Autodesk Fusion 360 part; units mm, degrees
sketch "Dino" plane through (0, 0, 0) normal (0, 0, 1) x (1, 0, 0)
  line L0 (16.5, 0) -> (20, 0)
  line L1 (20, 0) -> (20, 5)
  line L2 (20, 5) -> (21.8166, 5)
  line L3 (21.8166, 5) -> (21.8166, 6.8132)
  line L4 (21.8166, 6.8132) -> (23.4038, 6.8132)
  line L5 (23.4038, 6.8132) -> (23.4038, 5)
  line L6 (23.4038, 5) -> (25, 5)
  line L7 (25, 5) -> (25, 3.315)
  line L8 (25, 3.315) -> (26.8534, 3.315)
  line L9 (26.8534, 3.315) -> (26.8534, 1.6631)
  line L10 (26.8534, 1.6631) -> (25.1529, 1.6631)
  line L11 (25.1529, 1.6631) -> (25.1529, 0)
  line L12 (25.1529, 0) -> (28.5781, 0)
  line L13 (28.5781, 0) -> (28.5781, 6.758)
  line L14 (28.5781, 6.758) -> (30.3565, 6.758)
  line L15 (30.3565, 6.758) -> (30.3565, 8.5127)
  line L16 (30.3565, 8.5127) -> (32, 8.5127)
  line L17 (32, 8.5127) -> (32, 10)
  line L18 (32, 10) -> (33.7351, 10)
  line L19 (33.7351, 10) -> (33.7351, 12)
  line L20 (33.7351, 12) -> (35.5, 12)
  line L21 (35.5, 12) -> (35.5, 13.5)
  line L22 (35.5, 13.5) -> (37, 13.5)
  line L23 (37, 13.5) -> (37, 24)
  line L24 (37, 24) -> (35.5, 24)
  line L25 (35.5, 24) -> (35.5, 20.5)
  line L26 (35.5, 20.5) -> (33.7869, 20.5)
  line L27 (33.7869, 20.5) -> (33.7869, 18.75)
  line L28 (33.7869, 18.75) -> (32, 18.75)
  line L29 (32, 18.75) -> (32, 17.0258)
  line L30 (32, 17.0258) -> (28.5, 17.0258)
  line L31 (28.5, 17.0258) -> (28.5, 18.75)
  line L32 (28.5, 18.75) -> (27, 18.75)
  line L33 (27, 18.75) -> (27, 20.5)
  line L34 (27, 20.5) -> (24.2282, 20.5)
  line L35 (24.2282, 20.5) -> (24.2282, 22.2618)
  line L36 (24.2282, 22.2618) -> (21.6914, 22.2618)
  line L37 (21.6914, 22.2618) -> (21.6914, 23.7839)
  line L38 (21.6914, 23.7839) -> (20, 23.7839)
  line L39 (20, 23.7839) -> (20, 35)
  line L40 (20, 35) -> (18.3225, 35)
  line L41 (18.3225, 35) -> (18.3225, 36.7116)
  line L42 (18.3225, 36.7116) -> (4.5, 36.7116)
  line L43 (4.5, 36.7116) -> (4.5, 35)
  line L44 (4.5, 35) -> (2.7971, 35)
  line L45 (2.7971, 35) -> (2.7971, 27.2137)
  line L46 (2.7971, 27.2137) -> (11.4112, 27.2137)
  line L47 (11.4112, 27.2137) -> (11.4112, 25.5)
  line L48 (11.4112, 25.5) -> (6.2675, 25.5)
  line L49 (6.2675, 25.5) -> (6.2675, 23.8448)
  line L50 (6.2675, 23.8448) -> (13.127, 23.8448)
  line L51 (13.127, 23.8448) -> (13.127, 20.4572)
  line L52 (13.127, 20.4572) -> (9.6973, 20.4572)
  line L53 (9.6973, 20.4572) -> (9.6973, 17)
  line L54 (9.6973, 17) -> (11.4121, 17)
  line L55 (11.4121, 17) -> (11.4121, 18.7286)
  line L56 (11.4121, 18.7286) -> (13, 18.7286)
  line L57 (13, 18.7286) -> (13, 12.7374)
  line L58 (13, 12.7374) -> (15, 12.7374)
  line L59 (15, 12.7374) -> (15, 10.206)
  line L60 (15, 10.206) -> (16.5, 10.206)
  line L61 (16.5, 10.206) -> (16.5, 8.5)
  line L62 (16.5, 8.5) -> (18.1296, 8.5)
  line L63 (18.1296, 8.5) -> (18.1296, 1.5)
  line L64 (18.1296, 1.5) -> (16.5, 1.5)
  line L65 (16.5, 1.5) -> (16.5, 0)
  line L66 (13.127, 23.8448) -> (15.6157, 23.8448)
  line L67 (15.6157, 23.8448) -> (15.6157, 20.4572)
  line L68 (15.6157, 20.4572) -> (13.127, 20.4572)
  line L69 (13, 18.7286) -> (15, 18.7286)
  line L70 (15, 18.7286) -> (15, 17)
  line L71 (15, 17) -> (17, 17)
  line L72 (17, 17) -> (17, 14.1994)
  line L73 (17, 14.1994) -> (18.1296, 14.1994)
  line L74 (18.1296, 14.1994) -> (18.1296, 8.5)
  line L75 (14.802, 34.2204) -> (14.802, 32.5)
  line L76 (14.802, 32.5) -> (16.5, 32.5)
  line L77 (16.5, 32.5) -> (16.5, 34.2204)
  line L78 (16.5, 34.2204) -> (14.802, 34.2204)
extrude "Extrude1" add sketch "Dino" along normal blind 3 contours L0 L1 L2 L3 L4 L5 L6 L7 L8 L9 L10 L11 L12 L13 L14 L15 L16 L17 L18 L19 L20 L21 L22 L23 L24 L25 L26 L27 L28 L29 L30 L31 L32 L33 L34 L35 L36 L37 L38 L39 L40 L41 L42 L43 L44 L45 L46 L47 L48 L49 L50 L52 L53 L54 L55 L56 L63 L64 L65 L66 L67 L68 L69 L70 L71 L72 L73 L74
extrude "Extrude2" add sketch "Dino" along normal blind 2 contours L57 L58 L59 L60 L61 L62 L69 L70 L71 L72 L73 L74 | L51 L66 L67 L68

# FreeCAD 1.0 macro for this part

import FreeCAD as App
import Part
import Sketcher
from FreeCAD import Vector
Q = App.Units.Quantity


def add_polygon(sketch, points):
    """Adds a closed chain of lines whose ends are joined by coincident constraints."""
    first, n = sketch.GeometryCount, len(points)
    for a, b in zip(points, points[1:] + points[:1]):
        sketch.addGeometry(Part.LineSegment(App.Vector(*a, 0), App.Vector(*b, 0)), False)
    for i in range(n):
        sketch.addConstraint(Sketcher.Constraint("Coincident", first + i, 2, first + (i + 1) % n, 1))

doc = App.newDocument("Part")
body = doc.addObject("PartDesign::Body", "Body")

# Sketch on XY plane
sketch1 = doc.addObject("Sketcher::SketchObject", "Sketch")
body.addObject(sketch1)
sketch1.AttachmentSupport = (doc.XY_Plane, [""])
sketch1.MapMode = "FlatFace"
add_polygon(sketch1, [(16.5, 1.5), (16.5, 0), (20, 0), (20, 5), (21.8166, 5), (21.8166, 6.8132), (23.4038, 6.8132), (23.4038, 5), (25, 5), (25, 3.315), (26.8534, 3.315), (26.8534, 1.6631), (25.1529, 1.6631), (25.1529, 0), (28.5781, 0), (28.5781, 6.758), (30.3565, 6.758), (30.3565, 8.5127), (32, 8.5127), (32, 10), (33.7351, 10), (33.7351, 12), (35.5, 12), (35.5, 13.5), (37, 13.5), (37, 24), (35.5, 24), (35.5, 20.5), (33.7869, 20.5), (33.7869, 18.75), (32, 18.75), (32, 17.0258), (28.5, 17.0258), (28.5, 18.75), (27, 18.75), (27, 20.5), (24.2282, 20.5), (24.2282, 22.2618), (21.6914, 22.2618), (21.6914, 23.7839), (20, 23.7839), (20, 35), (18.3225, 35), (18.3225, 36.7116), (4.5, 36.7116), (4.5, 35), (2.7971, 35), (2.7971, 27.2137), (11.4112, 27.2137), (11.4112, 25.5), (6.2675, 25.5), (6.2675, 23.8448), (15.6157, 23.8448), (15.6157, 20.4572), (9.6973, 20.4572), (9.6973, 17), (11.4121, 17), (11.4121, 18.7286), (15, 18.7286), (15, 17), (17, 17), (17, 14.1994), (18.1296, 14.1994), (18.1296, 1.5)])  # lines 0-63
add_polygon(sketch1, [(14.802, 32.5), (14.802, 34.2204), (16.5, 34.2204), (16.5, 32.5)])  # lines 64-67
sketch1.addConstraint([
    Sketcher.Constraint("Vertical", 0),
    Sketcher.Constraint("Horizontal", 1),
    Sketcher.Constraint("Vertical", 2),
    Sketcher.Constraint("Horizontal", 3),
    Sketcher.Constraint("Vertical", 4),
    Sketcher.Constraint("Horizontal", 5),
    Sketcher.Constraint("Vertical", 6),
    Sketcher.Constraint("Horizontal", 7),
    Sketcher.Constraint("Vertical", 8),
    Sketcher.Constraint("Horizontal", 9),
    Sketcher.Constraint("Vertical", 10),
    Sketcher.Constraint("Horizontal", 11),
    Sketcher.Constraint("Vertical", 12),
    Sketcher.Constraint("Horizontal", 13),
    Sketcher.Constraint("Vertical", 14),
    Sketcher.Constraint("Horizontal", 15),
    Sketcher.Constraint("Vertical", 16),
    Sketcher.Constraint("Horizontal", 17),
    Sketcher.Constraint("Vertical", 18),
    Sketcher.Constraint("Horizontal", 19),
    Sketcher.Constraint("Vertical", 20),
    Sketcher.Constraint("Horizontal", 21),
    Sketcher.Constraint("Vertical", 22),
    Sketcher.Constraint("Horizontal", 23),
    Sketcher.Constraint("Vertical", 24),
    Sketcher.Constraint("Horizontal", 25),
    Sketcher.Constraint("Vertical", 26),
    Sketcher.Constraint("Horizontal", 27),
    Sketcher.Constraint("Vertical", 28),
    Sketcher.Constraint("Horizontal", 29),
    Sketcher.Constraint("Vertical", 30),
    Sketcher.Constraint("Horizontal", 31),
    Sketcher.Constraint("Vertical", 32),
    Sketcher.Constraint("Horizontal", 33),
    Sketcher.Constraint("Vertical", 34),
    Sketcher.Constraint("Horizontal", 35),
    Sketcher.Constraint("Vertical", 36),
    Sketcher.Constraint("Horizontal", 37),
    Sketcher.Constraint("Vertical", 38),
    Sketcher.Constraint("Horizontal", 39),
    Sketcher.Constraint("Vertical", 40),
    Sketcher.Constraint("Horizontal", 41),
    Sketcher.Constraint("Vertical", 42),
    Sketcher.Constraint("Horizontal", 43),
    Sketcher.Constraint("Vertical", 44),
    Sketcher.Constraint("Horizontal", 45),
    Sketcher.Constraint("Vertical", 46),
    Sketcher.Constraint("Horizontal", 47),
    Sketcher.Constraint("Vertical", 48),
    Sketcher.Constraint("Horizontal", 49),
    Sketcher.Constraint("Vertical", 50),
    Sketcher.Constraint("Horizontal", 51),
    Sketcher.Constraint("Vertical", 52),
    Sketcher.Constraint("Horizontal", 53),
    Sketcher.Constraint("Vertical", 54),
    Sketcher.Constraint("Horizontal", 55),
    Sketcher.Constraint("Vertical", 56),
    Sketcher.Constraint("Horizontal", 57),
    Sketcher.Constraint("Vertical", 58),
    Sketcher.Constraint("Horizontal", 59),
    Sketcher.Constraint("Vertical", 60),
    Sketcher.Constraint("Horizontal", 61),
    Sketcher.Constraint("Vertical", 62),
    Sketcher.Constraint("Horizontal", 63),
    Sketcher.Constraint("Vertical", 64),
    Sketcher.Constraint("Horizontal", 65),
    Sketcher.Constraint("Vertical", 66),
    Sketcher.Constraint("Horizontal", 67),
    Sketcher.Constraint("PointOnObject", 0, 2, -1),
    Sketcher.Constraint("PointOnObject", 12, 2, -1),
    Sketcher.Constraint("Horizontal", 3, 2, 6, 2),
    Sketcher.Constraint("Horizontal", 29, 2, 32, 2),
    Sketcher.Constraint("Horizontal", 27, 2, 34, 2),
    Sketcher.Constraint("Horizontal", 41, 2, 44, 2),
    Sketcher.Constraint("Horizontal", 55, 2, 58, 2),
    Sketcher.Constraint("Vertical", 22, 2, 25, 2),
    Sketcher.Constraint("Vertical", 18, 2, 29, 2),
    Sketcher.Constraint("Vertical", 2, 2, 39, 2),
    Sketcher.Constraint("Vertical", 63, 2, 65, 2),
    Sketcher.Constraint("Equal", 1, 31),
    Sketcher.Constraint("Equal", 25, 33),
    Sketcher.Constraint("Equal", 33, 0),
    Sketcher.Constraint("Equal", 59, 20),
    Sketcher.Constraint("Equal", 0, 22),
    Sketcher.Constraint("Equal", 31, 26),
    Sketcher.Constraint("DistanceX", 59, 1, 59, 2, Q("2 mm")),
    Sketcher.Constraint("DistanceY", 2, 1, 2, 2, Q("5 mm")),
    Sketcher.Constraint("DistanceX", 1, 1, 1, 2, Q("3.5 mm")),
    Sketcher.Constraint("DistanceX", 23, 1, 23, 2, Q("1.5 mm")),
    Sketcher.Constraint("DistanceY", 24, 1, 24, 2, Q("10.5 mm")),
    Sketcher.Constraint("DistanceX", -1, 1, 1, 2, Q("20 mm")),
    Sketcher.Constraint("DistanceX", -1, 1, 7, 2, Q("25 mm")),
    Sketcher.Constraint("DistanceX", -1, 1, 17, 2, Q("32 mm")),
    Sketcher.Constraint("DistanceY", -1, 1, 18, 2, Q("10 mm")),
    Sketcher.Constraint("DistanceX", -1, 1, 23, 2, Q("37 mm")),
    Sketcher.Constraint("DistanceY", -1, 1, 40, 2, Q("35 mm")),
    Sketcher.Constraint("DistanceY", -1, 1, 54, 2, Q("17 mm")),
    Sketcher.Constraint("DistanceX", -1, 1, 57, 2, Q("15 mm")),
    Sketcher.Constraint("DistanceY", 28, 2, 28, 1, Q("1.75 mm")),
    Sketcher.Constraint("DistanceX", -1, 1, 43, 2, Q("4.5 mm")),
    Sketcher.Constraint("DistanceY", -1, 1, 48, 2, Q("25.5 mm")),
    Sketcher.Constraint("DistanceY", -1, 1, 66, 2, Q("32.5 mm")),
    Sketcher.Constraint("DistanceX", 19, 1, 19, 2, Q("1.735 mm")),
    Sketcher.Constraint("DistanceX", 27, 2, 27, 1, Q("1.713 mm")),
    Sketcher.Constraint("DistanceX", 45, 2, 45, 1, Q("1.703 mm")),
    Sketcher.Constraint("DistanceX", 47, 1, 47, 2, Q("8.614 mm")),
    Sketcher.Constraint("DistanceX", 57, 1, 57, 2, Q("3.588 mm")),
    Sketcher.Constraint("DistanceX", 65, 1, 65, 2, Q("1.698 mm")),
    Sketcher.Constraint("DistanceY", 8, 2, 8, 1, Q("1.685 mm")),
    Sketcher.Constraint("DistanceY", 10, 2, 10, 1, Q("1.652 mm")),
    Sketcher.Constraint("DistanceY", 14, 1, 14, 2, Q("6.758 mm")),
    Sketcher.Constraint("DistanceY", 38, 1, 38, 2, Q("1.522 mm")),
    Sketcher.Constraint("DistanceY", 40, 1, 40, 2, Q("11.216 mm")),
    Sketcher.Constraint("DistanceX", 3, 1, 3, 2, Q("1.8166 mm")),
    Sketcher.Constraint("DistanceX", 5, 1, 5, 2, Q("1.5872 mm")),
    Sketcher.Constraint("DistanceX", 9, 1, 9, 2, Q("1.8534 mm")),
    Sketcher.Constraint("DistanceX", 11, 2, 11, 1, Q("1.7005 mm")),
    Sketcher.Constraint("DistanceX", 13, 1, 13, 2, Q("3.4252 mm")),
    Sketcher.Constraint("DistanceX", 15, 1, 15, 2, Q("1.7784 mm")),
    Sketcher.Constraint("DistanceX", 35, 2, 35, 1, Q("2.7718 mm")),
    Sketcher.Constraint("DistanceX", 37, 2, 37, 1, Q("2.5368 mm")),
    Sketcher.Constraint("DistanceX", 41, 2, 41, 1, Q("1.6775 mm")),
    Sketcher.Constraint("DistanceX", 49, 2, 49, 1, Q("5.1437 mm")),
    Sketcher.Constraint("DistanceX", 51, 1, 51, 2, Q("9.3482 mm")),
    Sketcher.Constraint("DistanceX", 53, 2, 53, 1, Q("5.9184 mm")),
    Sketcher.Constraint("DistanceX", 61, 1, 61, 2, Q("1.1296 mm")),
    Sketcher.Constraint("DistanceY", 4, 1, 4, 2, Q("1.8132 mm")),
    Sketcher.Constraint("DistanceY", 16, 1, 16, 2, Q("1.7547 mm")),
    Sketcher.Constraint("DistanceY", 30, 2, 30, 1, Q("1.7242 mm")),
    Sketcher.Constraint("DistanceY", 42, 1, 42, 2, Q("1.7116 mm")),
    Sketcher.Constraint("DistanceY", 46, 2, 46, 1, Q("7.7863 mm")),
    Sketcher.Constraint("DistanceY", 50, 2, 50, 1, Q("1.6552 mm")),
    Sketcher.Constraint("DistanceY", 52, 2, 52, 1, Q("3.3876 mm")),
    Sketcher.Constraint("DistanceY", 56, 1, 56, 2, Q("1.7286 mm")),
    Sketcher.Constraint("DistanceY", 60, 2, 60, 1, Q("2.8006 mm")),
    Sketcher.Constraint("DistanceY", 64, 1, 64, 2, Q("1.7204 mm")),
])
pad1 = doc.addObject("PartDesign::Pad", "Pad")
body.addObject(pad1)
pad1.Profile = sketch1
pad1.Length = 3

# Sketch on XY plane
sketch2 = doc.addObject("Sketcher::SketchObject", "Sketch001")
body.addObject(sketch2)
sketch2.AttachmentSupport = (doc.XY_Plane, [""])
sketch2.MapMode = "FlatFace"
add_polygon(sketch2, [(16.5, 8.5), (18.1296, 8.5), (18.1296, 14.1994), (17, 14.1994), (17, 17), (15, 17), (15, 18.7286), (13, 18.7286), (13, 12.7374), (15, 12.7374), (15, 10.206), (16.5, 10.206)])  # lines 0-11
add_polygon(sketch2, [(13.127, 23.8448), (13.127, 20.4572), (15.6157, 20.4572), (15.6157, 23.8448)])  # lines 12-15
sketch2.addConstraint([
    Sketcher.Constraint("Horizontal", 0),
    Sketcher.Constraint("Vertical", 1),
    Sketcher.Constraint("Horizontal", 2),
    Sketcher.Constraint("Vertical", 3),
    Sketcher.Constraint("Horizontal", 4),
    Sketcher.Constraint("Vertical", 5),
    Sketcher.Constraint("Horizontal", 6),
    Sketcher.Constraint("Vertical", 7),
    Sketcher.Constraint("Horizontal", 8),
    Sketcher.Constraint("Vertical", 9),
    Sketcher.Constraint("Horizontal", 10),
    Sketcher.Constraint("Vertical", 11),
    Sketcher.Constraint("Vertical", 12),
    Sketcher.Constraint("Horizontal", 13),
    Sketcher.Constraint("Vertical", 14),
    Sketcher.Constraint("Horizontal", 15),
    Sketcher.Constraint("Vertical", 5, 2, 8, 2),
    Sketcher.Constraint("Equal", 4, 6),
    Sketcher.Constraint("DistanceX", 4, 2, 4, 1, Q("2 mm")),
    Sketcher.Constraint("DistanceX", 10, 1, 10, 2, Q("1.5 mm")),
    Sketcher.Constraint("DistanceX", -1, 1, 2, 2, Q("17 mm")),
    Sketcher.Constraint("DistanceY", -1, 1, 3, 2, Q("17 mm")),
    Sketcher.Constraint("DistanceY", -1, 1, 0, 2, Q("8.5 mm")),
    Sketcher.Constraint("DistanceY", 11, 2, 11, 1, Q("1.706 mm")),
    Sketcher.Constraint("DistanceX", 0, 1, 0, 2, Q("1.6296 mm")),
    Sketcher.Constraint("DistanceX", 13, 1, 13, 2, Q("2.4887 mm")),
    Sketcher.Constraint("DistanceY", 1, 1, 1, 2, Q("5.6994 mm")),
    Sketcher.Constraint("DistanceY", 5, 1, 5, 2, Q("1.7286 mm")),
    Sketcher.Constraint("DistanceY", 7, 2, 7, 1, Q("5.9912 mm")),
    Sketcher.Constraint("DistanceY", 12, 2, 12, 1, Q("3.3876 mm")),
    Sketcher.Constraint("DistanceX", -1, 1, 12, 2, Q("13.127 mm")),
    Sketcher.Constraint("DistanceY", -1, 1, 12, 2, Q("20.4572 mm")),
])
pad2 = doc.addObject("PartDesign::Pad", "Pad001")
body.addObject(pad2)
pad2.Profile = sketch2
pad2.Length = 2

doc.recompute()
